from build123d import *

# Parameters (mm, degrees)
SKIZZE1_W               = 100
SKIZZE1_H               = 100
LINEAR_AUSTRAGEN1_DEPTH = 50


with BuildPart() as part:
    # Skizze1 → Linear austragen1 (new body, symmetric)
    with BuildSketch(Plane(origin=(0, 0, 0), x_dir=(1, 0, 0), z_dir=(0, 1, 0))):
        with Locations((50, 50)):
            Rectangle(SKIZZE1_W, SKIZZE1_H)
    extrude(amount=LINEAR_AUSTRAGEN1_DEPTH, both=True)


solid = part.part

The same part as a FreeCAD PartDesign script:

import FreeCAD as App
import Part
import Sketcher

V = App.Vector
Q = App.Units.Quantity

doc = App.newDocument("Part")
body = doc.addObject("PartDesign::Body", "Body")

sketch1 = body.newObject("Sketcher::SketchObject", "Sketch")
sketch1.AttachmentSupport = (doc.getObject("XZ_Plane"), [""])
sketch1.MapMode = "FlatFace"
sketch1.addGeometry(Part.LineSegment(V(0, -100, 0), V(0, 0, 0)), False)
sketch1.addGeometry(Part.LineSegment(V(0, 0, 0), V(100, 0, 0)), False)
sketch1.addGeometry(Part.LineSegment(V(100, 0, 0), V(100, -100, 0)), False)
sketch1.addGeometry(Part.LineSegment(V(100, -100, 0), V(0, -100, 0)), False)
sketch1.addConstraint(Sketcher.Constraint("Coincident", 0, 2, 1, 1))
sketch1.addConstraint(Sketcher.Constraint("Coincident", 1, 2, 2, 1))
sketch1.addConstraint(Sketcher.Constraint("Coincident", 2, 2, 3, 1))
sketch1.addConstraint(Sketcher.Constraint("Coincident", 3, 2, 0, 1))
sketch1.addConstraint(Sketcher.Constraint("Vertical", 0))
sketch1.addConstraint(Sketcher.Constraint("Horizontal", 1))
sketch1.addConstraint(Sketcher.Constraint("Vertical", 2))
sketch1.addConstraint(Sketcher.Constraint("Horizontal", 3))
sketch1.addConstraint(Sketcher.Constraint("Coincident", 0, 2, -1, 1))
sketch1.addConstraint(Sketcher.Constraint("Equal", 3, 0))
sketch1.addConstraint(Sketcher.Constraint("DistanceX", 1, 1, 1, 2, Q("100 mm")))
pad1 = body.newObject("PartDesign::Pad", "Pad")
pad1.Profile = sketch1
pad1.Length = 100
pad1.Midplane = True

doc.recompute()
